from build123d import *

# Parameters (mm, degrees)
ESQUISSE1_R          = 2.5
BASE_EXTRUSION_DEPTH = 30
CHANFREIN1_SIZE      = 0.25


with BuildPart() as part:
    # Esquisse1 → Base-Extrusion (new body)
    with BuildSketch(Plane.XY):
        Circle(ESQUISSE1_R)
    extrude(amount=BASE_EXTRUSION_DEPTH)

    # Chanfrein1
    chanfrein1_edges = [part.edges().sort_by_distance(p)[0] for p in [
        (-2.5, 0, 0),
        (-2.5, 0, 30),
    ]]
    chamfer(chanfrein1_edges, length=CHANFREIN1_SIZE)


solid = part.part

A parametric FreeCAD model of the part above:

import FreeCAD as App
import Part
import Sketcher

V = App.Vector


def edges_at(feature, points):
    """Names of the edges that pass closest to the given points."""
    edges = feature.Shape.Edges
    near = lambda p: min(range(len(edges)), key=lambda i: edges[i].distToShape(Part.Vertex(*p))[0])
    return sorted({f"Edge{near(p) + 1}" for p in points})

doc = App.newDocument("Part")
body = doc.addObject("PartDesign::Body", "Body")

sketch1 = body.newObject("Sketcher::SketchObject", "Sketch")
sketch1.AttachmentSupport = (doc.getObject("XY_Plane"), [""])
sketch1.MapMode = "FlatFace"
sketch1.addGeometry(Part.Circle(V(0, 0, 0), V(0, 0, 1), 2.5), False)
sketch1.addConstraint(Sketcher.Constraint("Coincident", 0, 3, -1, 1))
sketch1.addConstraint(Sketcher.Constraint("Diameter", 0, 5.0))
pad1 = body.newObject("PartDesign::Pad", "Pad")
pad1.Profile = sketch1
pad1.Length = 30
doc.recompute()

chamfer = body.newObject("PartDesign::Chamfer", "Chamfer")
chamfer.Base = (pad1, edges_at(pad1, [(-2.5, 0, 0), (-2.5, 0, 30)]))
chamfer.Size = 0.25

doc.recompute()
